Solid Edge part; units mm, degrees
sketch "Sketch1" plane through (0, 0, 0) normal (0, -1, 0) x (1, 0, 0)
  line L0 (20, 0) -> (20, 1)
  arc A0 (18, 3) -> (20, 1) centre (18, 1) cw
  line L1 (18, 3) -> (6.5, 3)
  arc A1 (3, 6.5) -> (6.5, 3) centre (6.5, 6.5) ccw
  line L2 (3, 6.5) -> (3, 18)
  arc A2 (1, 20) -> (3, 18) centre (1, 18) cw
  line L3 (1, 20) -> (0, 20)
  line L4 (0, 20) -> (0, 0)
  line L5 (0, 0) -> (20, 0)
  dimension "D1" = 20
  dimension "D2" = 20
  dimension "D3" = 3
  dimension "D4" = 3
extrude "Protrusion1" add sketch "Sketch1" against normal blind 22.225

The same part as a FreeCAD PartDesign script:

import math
import FreeCAD as App
import Part
import Sketcher
Q = App.Units.Quantity

doc = App.newDocument("Part")
body = doc.addObject("PartDesign::Body", "Body")

# Sketch on XZ plane
sketch1 = body.newObject("Sketcher::SketchObject", "Sketch")
sketch1.AttachmentSupport = (doc.getObject("XZ_Plane"), [""])
sketch1.MapMode = "FlatFace"
sketch1.addGeometry([
    Part.LineSegment(App.Vector(0, 0, 0), App.Vector(20, 0, 0)),  # 0
    Part.LineSegment(App.Vector(20, 0, 0), App.Vector(20, 1, 0)),  # 1
    Part.ArcOfCircle(Part.Circle(App.Vector(18, 1, 0), App.Vector(0, 0, 1), 2), math.radians(0), math.radians(90)),  # 2
    Part.LineSegment(App.Vector(18, 3, 0), App.Vector(6.5, 3, 0)),  # 3
    Part.ArcOfCircle(Part.Circle(App.Vector(6.5, 6.5, 0), App.Vector(0, 0, 1), 3.5), math.radians(180), math.radians(270)),  # 4
    Part.LineSegment(App.Vector(3, 6.5, 0), App.Vector(3, 18, 0)),  # 5
    Part.ArcOfCircle(Part.Circle(App.Vector(1, 18, 0), App.Vector(0, 0, 1), 2), math.radians(0), math.radians(90)),  # 6
    Part.LineSegment(App.Vector(1, 20, 0), App.Vector(0, 20, 0)),  # 7
    Part.LineSegment(App.Vector(0, 20, 0), App.Vector(0, 0, 0)),  # 8
], False)
sketch1.addConstraint([
    Sketcher.Constraint("Coincident", 0, 2, 1, 1),
    Sketcher.Constraint("Tangent", 1, 2, 2, 1),
    Sketcher.Constraint("Tangent", 2, 2, 3, 1),
    Sketcher.Constraint("Tangent", 3, 2, 4, 2),
    Sketcher.Constraint("Tangent", 4, 1, 5, 1),
    Sketcher.Constraint("Tangent", 5, 2, 6, 1),
    Sketcher.Constraint("Tangent", 6, 2, 7, 1),
    Sketcher.Constraint("Coincident", 7, 2, 8, 1),
    Sketcher.Constraint("Coincident", 8, 2, 0, 1),
    Sketcher.Constraint("Horizontal", 0),
    Sketcher.Constraint("Vertical", 1),
    Sketcher.Constraint("Horizontal", 3),
    Sketcher.Constraint("Vertical", 5),
    Sketcher.Constraint("Horizontal", 7),
    Sketcher.Constraint("Vertical", 8),
    Sketcher.Constraint("Coincident", 8, 2, -1, 1),
    Sketcher.Constraint("Equal", 2, 6),
    Sketcher.Constraint("Equal", 7, 1),
    Sketcher.Constraint("Equal", 3, 5),
    Sketcher.Constraint("Radius", 2, Q("2 mm")),
    Sketcher.Constraint("Radius", 4, Q("3.5 mm")),
    Sketcher.Constraint("DistanceX", 0, 1, 0, 2, Q("20 mm")),
    Sketcher.Constraint("DistanceX", 7, 2, 7, 1, Q("1 mm")),
])
pad1 = body.newObject("PartDesign::Pad", "Pad")
pad1.Profile = sketch1
pad1.Length = 22.225
pad1.Reversed = True

doc.recompute()
